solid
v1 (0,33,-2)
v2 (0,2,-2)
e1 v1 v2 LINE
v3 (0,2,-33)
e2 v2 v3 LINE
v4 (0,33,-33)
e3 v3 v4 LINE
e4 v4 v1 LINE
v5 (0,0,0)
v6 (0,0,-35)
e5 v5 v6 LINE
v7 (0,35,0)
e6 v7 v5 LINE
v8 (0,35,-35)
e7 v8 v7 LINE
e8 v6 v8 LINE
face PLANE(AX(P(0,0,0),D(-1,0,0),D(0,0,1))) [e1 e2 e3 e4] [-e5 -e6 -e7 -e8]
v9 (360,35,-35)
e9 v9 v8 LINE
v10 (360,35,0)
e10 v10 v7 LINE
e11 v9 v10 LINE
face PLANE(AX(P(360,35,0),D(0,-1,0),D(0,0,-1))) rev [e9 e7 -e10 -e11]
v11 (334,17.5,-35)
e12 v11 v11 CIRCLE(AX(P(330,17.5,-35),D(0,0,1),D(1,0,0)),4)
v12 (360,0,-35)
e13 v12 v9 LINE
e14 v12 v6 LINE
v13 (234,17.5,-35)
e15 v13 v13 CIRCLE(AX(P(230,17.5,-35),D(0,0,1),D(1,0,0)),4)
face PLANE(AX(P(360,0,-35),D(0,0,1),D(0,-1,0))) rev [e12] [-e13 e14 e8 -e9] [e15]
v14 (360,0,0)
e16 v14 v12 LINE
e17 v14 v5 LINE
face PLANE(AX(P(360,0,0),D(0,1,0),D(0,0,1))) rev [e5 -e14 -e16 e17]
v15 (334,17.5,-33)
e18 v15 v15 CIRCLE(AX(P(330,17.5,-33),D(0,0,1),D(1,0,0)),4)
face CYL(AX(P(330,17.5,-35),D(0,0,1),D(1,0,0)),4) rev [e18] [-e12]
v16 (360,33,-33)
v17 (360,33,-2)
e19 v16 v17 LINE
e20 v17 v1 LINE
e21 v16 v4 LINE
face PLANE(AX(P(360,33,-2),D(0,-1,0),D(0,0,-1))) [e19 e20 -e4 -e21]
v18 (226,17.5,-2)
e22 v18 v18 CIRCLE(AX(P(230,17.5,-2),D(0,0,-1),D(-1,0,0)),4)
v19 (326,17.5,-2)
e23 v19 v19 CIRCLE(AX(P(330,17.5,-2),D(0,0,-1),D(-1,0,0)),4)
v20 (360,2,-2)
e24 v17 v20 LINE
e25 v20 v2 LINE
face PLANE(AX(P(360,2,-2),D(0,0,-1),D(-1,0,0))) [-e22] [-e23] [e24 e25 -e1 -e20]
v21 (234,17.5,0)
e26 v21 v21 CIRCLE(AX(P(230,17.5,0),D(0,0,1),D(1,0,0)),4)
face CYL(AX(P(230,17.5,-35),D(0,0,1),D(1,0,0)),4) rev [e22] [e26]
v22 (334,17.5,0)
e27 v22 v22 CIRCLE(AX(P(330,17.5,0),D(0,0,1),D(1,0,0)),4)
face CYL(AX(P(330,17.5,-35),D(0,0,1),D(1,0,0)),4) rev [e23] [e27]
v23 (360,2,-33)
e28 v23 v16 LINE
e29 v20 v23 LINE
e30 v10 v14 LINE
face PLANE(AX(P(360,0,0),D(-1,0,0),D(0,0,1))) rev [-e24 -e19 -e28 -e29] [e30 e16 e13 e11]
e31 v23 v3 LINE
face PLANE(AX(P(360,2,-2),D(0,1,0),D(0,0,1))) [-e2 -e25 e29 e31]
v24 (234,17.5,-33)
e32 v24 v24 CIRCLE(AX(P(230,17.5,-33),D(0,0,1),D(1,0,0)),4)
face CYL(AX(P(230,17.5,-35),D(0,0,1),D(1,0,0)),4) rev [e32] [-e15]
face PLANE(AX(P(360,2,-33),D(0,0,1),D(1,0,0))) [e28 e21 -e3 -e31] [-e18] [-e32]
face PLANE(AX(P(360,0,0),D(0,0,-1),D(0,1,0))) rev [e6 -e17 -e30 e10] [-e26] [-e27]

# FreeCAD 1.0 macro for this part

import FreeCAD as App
import Part
import Sketcher
from FreeCAD import Vector

doc = App.newDocument("Part")
body = doc.addObject("PartDesign::Body", "Body")

# Sketch on YZ plane
sketch1 = body.newObject("Sketcher::SketchObject", "Sketch")
sketch1.AttachmentSupport = (doc.getObject("YZ_Plane"), [""])
sketch1.MapMode = "FlatFace"
sketch1.addGeometry([
    Part.LineSegment(Vector(35, 0, 0), Vector(0, 0, 0)),  # 0
    Part.LineSegment(Vector(0, 0, 0), Vector(0, -35, 0)),  # 1
    Part.LineSegment(Vector(0, -35, 0), Vector(35, -35, 0)),  # 2
    Part.LineSegment(Vector(35, -35, 0), Vector(35, 0, 0)),  # 3
    Part.LineSegment(Vector(2, -33, 0), Vector(2, -2, 0)),  # 4
    Part.LineSegment(Vector(2, -2, 0), Vector(33, -2, 0)),  # 5
    Part.LineSegment(Vector(33, -2, 0), Vector(33, -33, 0)),  # 6
    Part.LineSegment(Vector(33, -33, 0), Vector(2, -33, 0)),  # 7
], False)
sketch1.addConstraint([
    Sketcher.Constraint("Coincident", 0, 2, 1, 1),
    Sketcher.Constraint("Coincident", 1, 2, 2, 1),
    Sketcher.Constraint("Coincident", 2, 2, 3, 1),
    Sketcher.Constraint("Coincident", 3, 2, 0, 1),
    Sketcher.Constraint("Coincident", 4, 2, 5, 1),
    Sketcher.Constraint("Coincident", 5, 2, 6, 1),
    Sketcher.Constraint("Coincident", 6, 2, 7, 1),
    Sketcher.Constraint("Coincident", 7, 2, 4, 1),
    Sketcher.Constraint("Horizontal", 0),
    Sketcher.Constraint("Vertical", 1),
    Sketcher.Constraint("Horizontal", 2),
    Sketcher.Constraint("Vertical", 3),
    Sketcher.Constraint("Vertical", 4),
    Sketcher.Constraint("Horizontal", 5),
    Sketcher.Constraint("Vertical", 6),
    Sketcher.Constraint("Horizontal", 7),
    Sketcher.Constraint("Coincident", 0, 2, -1, 1),
    Sketcher.Constraint("Equal", 2, 1),
    Sketcher.Constraint("Equal", 7, 4),
    Sketcher.Constraint("DistanceX", 0, 2, 0, 1, 35.0),
    Sketcher.Constraint("DistanceX", 5, 1, 5, 2, 31.0),
    Sketcher.Constraint("DistanceX", -1, 1, 4, 2, 2.0),
    Sketcher.Constraint("DistanceY", 4, 2, -1, 1, 2.0),
])
pad1 = body.newObject("PartDesign::Pad", "Pad")
pad1.Profile = sketch1
pad1.Length = 360

# Sketch on XY plane
sketch2 = body.newObject("Sketcher::SketchObject", "Sketch001")
sketch2.AttachmentSupport = (doc.getObject("XY_Plane"), [""])
sketch2.MapMode = "FlatFace"
sketch2.addGeometry([
    Part.Circle(Vector(330, 17.5, 0), Vector(0, 0, 1), 4),
    Part.Circle(Vector(230, 17.5, 0), Vector(0, 0, 1), 4),
], False)
sketch2.addConstraint([
    Sketcher.Constraint("Equal", 0, 1),
    Sketcher.Constraint("Horizontal", 0, 3, 1, 3),
    Sketcher.Constraint("Diameter", 0, 8.0),
    Sketcher.Constraint("DistanceX", -1, 1, 0, 3, 330.0),
    Sketcher.Constraint("DistanceX", -1, 1, 1, 3, 230.0),
    Sketcher.Constraint("DistanceY", -1, 1, 0, 3, 17.5),
])
pocket1 = body.newObject("PartDesign::Pocket", "Pocket")
pocket1.Profile = sketch2
pocket1.Type = "ThroughAll"

doc.recompute()
